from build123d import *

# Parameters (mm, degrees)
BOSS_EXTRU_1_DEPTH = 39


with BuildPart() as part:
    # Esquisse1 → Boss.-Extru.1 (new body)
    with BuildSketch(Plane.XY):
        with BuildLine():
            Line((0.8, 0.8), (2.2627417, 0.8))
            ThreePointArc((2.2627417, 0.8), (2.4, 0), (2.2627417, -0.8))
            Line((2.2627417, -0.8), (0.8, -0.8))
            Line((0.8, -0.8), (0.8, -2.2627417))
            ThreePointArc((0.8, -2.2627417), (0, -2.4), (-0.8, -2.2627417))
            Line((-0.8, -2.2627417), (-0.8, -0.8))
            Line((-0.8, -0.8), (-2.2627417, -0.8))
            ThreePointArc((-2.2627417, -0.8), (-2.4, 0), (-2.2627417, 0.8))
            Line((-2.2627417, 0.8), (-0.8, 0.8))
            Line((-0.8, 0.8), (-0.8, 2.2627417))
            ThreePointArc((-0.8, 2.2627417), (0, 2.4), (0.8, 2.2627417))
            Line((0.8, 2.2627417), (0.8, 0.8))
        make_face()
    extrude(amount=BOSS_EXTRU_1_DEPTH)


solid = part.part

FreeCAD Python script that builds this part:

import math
import FreeCAD as App
import Part
import Sketcher
from FreeCAD import Vector
Q = App.Units.Quantity

doc = App.newDocument("Part")
body = doc.addObject("PartDesign::Body", "Body")

sketch1 = body.newObject("Sketcher::SketchObject", "Sketch")
sketch1.AttachmentSupport = (doc.getObject("XY_Plane"), [""])
sketch1.MapMode = "FlatFace"
sketch1.addGeometry([
    Part.LineSegment(Vector(2.3, 0.8, 0), Vector(0.8, 0.8, 0)),
    Part.LineSegment(Vector(0.8, 0.8, 0), Vector(0.8, 2.3, 0)),
    Part.ArcOfCircle(Part.Circle(Vector(0, 0, 0), Vector(0, 0, 1), 2.4), math.radians(71), math.radians(109)),
    Part.LineSegment(Vector(-0.8, 2.3, 0), Vector(-0.8, 0.8, 0)),
    Part.LineSegment(Vector(-0.8, 0.8, 0), Vector(-2.3, 0.8, 0)),
    Part.ArcOfCircle(Part.Circle(Vector(0, 0, 0), Vector(0, 0, 1), 2.4), math.radians(161), math.radians(199)),
    Part.LineSegment(Vector(-2.3, -0.8, 0), Vector(-0.8, -0.8, 0)),
    Part.LineSegment(Vector(-0.8, -0.8, 0), Vector(-0.8, -2.3, 0)),
    Part.ArcOfCircle(Part.Circle(Vector(0, 0, 0), Vector(0, 0, 1), 2.4), math.radians(-109), math.radians(-71)),
    Part.LineSegment(Vector(0.8, -2.3, 0), Vector(0.8, -0.8, 0)),
    Part.LineSegment(Vector(0.8, -0.8, 0), Vector(2.3, -0.8, 0)),
    Part.ArcOfCircle(Part.Circle(Vector(0, 0, 0), Vector(0, 0, 1), 2.4), math.radians(-19), math.radians(19)),
], False)
sketch1.addConstraint([
    Sketcher.Constraint("Coincident", 0, 2, 1, 1),
    Sketcher.Constraint("Coincident", 1, 2, 2, 1),
    Sketcher.Constraint("Coincident", 2, 2, 3, 1),
    Sketcher.Constraint("Coincident", 3, 2, 4, 1),
    Sketcher.Constraint("Coincident", 4, 2, 5, 1),
    Sketcher.Constraint("Coincident", 5, 2, 6, 1),
    Sketcher.Constraint("Coincident", 6, 2, 7, 1),
    Sketcher.Constraint("Coincident", 7, 2, 8, 1),
    Sketcher.Constraint("Coincident", 8, 2, 9, 1),
    Sketcher.Constraint("Coincident", 9, 2, 10, 1),
    Sketcher.Constraint("Coincident", 10, 2, 11, 1),
    Sketcher.Constraint("Coincident", 11, 2, 0, 1),
    Sketcher.Constraint("Horizontal", 0),
    Sketcher.Constraint("Vertical", 1),
    Sketcher.Constraint("Vertical", 3),
    Sketcher.Constraint("Horizontal", 4),
    Sketcher.Constraint("Horizontal", 6),
    Sketcher.Constraint("Vertical", 7),
    Sketcher.Constraint("Vertical", 9),
    Sketcher.Constraint("Horizontal", 10),
    Sketcher.Constraint("Coincident", 2, 3, -1, 1),
    Sketcher.Constraint("Coincident", 5, 3, -1, 1),
    Sketcher.Constraint("Coincident", 8, 3, -1, 1),
    Sketcher.Constraint("Coincident", 11, 3, -1, 1),
    Sketcher.Constraint("Equal", 2, 5),
    Sketcher.Constraint("Equal", 5, 8),
    Sketcher.Constraint("Equal", 8, 11),
    Sketcher.Constraint("Symmetric", 0, 2, 6, 2, -1, 1),
    Sketcher.Constraint("Symmetric", 3, 2, 9, 2, -1, 1),
    Sketcher.Constraint("Symmetric", 0, 2, 3, 2, -2),
    Sketcher.Constraint("Equal", 10, 1),
    Sketcher.Constraint("Radius", 2, Q("2.4 mm")),
    Sketcher.Constraint("DistanceX", -1, 1, 0, 2, Q("0.8 mm")),
])
pad1 = body.newObject("PartDesign::Pad", "Pad")
pad1.Profile = sketch1
pad1.Length = 39

doc.recompute()
